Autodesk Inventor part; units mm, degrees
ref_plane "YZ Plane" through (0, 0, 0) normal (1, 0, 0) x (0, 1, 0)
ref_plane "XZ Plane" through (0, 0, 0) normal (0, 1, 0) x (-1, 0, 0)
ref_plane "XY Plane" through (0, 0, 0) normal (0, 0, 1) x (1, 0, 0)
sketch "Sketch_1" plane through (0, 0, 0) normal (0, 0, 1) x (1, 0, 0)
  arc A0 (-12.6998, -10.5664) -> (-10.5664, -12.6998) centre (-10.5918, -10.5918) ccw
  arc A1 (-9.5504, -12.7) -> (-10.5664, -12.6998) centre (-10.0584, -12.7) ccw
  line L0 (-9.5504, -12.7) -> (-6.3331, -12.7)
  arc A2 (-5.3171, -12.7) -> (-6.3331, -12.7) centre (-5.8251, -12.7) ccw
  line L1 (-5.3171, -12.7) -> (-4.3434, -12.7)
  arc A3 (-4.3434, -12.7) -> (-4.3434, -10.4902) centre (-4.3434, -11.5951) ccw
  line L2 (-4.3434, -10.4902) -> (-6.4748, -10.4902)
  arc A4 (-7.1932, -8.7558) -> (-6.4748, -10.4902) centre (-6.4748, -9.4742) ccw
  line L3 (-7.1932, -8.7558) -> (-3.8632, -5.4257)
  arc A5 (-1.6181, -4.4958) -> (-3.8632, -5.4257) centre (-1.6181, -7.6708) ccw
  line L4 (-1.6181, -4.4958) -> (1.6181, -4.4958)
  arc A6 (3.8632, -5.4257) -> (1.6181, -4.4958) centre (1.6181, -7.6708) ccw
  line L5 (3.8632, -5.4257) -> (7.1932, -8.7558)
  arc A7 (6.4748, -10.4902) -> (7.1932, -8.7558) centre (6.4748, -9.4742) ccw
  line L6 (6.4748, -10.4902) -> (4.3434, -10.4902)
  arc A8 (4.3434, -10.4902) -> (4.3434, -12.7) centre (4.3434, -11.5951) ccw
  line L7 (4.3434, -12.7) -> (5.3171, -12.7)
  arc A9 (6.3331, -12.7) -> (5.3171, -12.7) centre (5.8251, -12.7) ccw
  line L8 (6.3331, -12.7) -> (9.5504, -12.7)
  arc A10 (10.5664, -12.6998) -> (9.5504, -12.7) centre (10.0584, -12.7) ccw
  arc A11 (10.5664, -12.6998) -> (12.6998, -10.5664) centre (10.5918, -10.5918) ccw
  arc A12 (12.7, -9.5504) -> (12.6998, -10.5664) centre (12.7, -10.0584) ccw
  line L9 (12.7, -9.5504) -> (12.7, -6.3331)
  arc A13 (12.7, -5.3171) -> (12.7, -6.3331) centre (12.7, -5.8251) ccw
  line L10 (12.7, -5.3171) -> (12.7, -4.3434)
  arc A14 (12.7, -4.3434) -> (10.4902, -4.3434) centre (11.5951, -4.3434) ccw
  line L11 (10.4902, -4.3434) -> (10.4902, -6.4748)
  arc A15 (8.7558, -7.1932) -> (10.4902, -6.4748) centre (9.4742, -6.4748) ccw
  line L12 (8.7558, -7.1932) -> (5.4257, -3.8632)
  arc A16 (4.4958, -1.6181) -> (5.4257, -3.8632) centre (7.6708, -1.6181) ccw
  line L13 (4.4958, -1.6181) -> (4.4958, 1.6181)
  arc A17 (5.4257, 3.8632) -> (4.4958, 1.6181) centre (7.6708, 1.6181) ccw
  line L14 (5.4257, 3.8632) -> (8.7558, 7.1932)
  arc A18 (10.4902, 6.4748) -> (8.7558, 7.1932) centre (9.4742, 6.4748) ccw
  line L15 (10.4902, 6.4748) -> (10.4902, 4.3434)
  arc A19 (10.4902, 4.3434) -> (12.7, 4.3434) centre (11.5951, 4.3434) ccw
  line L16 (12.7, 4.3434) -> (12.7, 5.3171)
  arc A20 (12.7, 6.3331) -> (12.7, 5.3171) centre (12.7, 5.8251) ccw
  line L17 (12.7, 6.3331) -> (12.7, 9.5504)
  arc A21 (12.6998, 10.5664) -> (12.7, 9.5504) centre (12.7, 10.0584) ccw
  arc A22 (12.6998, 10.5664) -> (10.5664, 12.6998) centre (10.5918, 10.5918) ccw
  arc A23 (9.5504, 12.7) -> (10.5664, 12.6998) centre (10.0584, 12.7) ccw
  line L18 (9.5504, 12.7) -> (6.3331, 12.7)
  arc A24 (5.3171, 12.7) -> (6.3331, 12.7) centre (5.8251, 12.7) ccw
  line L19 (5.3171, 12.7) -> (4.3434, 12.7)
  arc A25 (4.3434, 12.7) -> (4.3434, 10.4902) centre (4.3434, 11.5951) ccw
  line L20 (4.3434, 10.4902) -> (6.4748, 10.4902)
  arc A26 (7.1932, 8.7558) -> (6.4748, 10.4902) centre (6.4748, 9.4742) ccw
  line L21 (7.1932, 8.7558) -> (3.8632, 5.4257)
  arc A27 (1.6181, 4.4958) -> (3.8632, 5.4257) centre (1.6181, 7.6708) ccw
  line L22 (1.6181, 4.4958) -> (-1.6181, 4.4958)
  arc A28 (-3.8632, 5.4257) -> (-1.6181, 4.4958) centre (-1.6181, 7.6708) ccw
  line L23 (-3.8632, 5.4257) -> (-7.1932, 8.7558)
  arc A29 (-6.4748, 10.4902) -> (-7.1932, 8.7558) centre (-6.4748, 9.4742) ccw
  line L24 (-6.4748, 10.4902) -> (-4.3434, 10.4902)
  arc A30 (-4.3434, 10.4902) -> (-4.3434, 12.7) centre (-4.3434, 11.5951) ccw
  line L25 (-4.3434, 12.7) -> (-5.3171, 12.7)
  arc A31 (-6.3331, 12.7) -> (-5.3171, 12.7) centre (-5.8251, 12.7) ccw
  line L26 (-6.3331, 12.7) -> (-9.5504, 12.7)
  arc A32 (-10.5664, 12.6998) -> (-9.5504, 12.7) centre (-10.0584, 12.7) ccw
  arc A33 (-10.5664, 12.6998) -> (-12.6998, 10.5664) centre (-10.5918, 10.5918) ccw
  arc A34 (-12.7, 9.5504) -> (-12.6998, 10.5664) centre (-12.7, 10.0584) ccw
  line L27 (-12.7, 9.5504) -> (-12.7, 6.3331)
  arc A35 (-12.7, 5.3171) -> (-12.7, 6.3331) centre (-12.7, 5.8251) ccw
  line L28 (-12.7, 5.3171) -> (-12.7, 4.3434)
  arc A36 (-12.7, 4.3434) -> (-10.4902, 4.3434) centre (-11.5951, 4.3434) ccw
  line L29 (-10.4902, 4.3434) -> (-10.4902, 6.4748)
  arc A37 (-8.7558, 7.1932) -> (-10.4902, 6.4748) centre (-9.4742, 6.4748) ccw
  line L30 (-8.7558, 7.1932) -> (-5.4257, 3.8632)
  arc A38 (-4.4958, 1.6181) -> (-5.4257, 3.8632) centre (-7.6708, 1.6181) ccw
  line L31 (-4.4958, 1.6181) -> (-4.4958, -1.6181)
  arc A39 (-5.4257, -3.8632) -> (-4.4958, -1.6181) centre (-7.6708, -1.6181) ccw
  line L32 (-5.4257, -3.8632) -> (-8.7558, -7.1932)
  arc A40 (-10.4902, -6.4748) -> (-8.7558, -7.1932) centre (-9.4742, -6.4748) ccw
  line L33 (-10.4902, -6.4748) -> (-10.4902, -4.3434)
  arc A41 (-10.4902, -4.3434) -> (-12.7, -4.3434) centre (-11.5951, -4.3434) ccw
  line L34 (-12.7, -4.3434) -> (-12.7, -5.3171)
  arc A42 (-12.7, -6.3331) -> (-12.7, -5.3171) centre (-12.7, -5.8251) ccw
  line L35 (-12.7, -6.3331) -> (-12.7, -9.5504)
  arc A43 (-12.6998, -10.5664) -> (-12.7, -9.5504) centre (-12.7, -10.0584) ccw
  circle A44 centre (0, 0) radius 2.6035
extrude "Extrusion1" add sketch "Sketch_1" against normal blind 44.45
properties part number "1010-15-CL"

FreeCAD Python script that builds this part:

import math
import FreeCAD as App
import Part
import Sketcher

V = App.Vector
Q = App.Units.Quantity

doc = App.newDocument("Part")
body = doc.addObject("PartDesign::Body", "Body")

sketch1 = body.newObject("Sketcher::SketchObject", "Sketch")
sketch1.AttachmentSupport = (doc.getObject("XY_Plane"), [""])
sketch1.MapMode = "FlatFace"
sketch1.addGeometry([
    Part.ArcOfCircle(Part.Circle(V(-12.7, -10.1, 0), V(0, 0, 1), 0.5), math.radians(-90), math.radians(90)),
    Part.ArcOfCircle(Part.Circle(V(-10.6, -10.6, 0), V(0, 0, 1), 2.1), math.radians(179), math.radians(271)),
    Part.ArcOfCircle(Part.Circle(V(-10.1, -12.7, 0), V(0, 0, 1), 0.5), math.radians(0), math.radians(180)),
    Part.LineSegment(V(-9.6, -12.7, 0), V(-6.3, -12.7, 0)),
    Part.ArcOfCircle(Part.Circle(V(-5.8, -12.7, 0), V(0, 0, 1), 0.5), math.radians(0), math.radians(180)),
    Part.LineSegment(V(-5.3, -12.7, 0), V(-4.3, -12.7, 0)),
    Part.ArcOfCircle(Part.Circle(V(-4.3, -11.6, 0), V(0, 0, 1), 1.1), math.radians(-90), math.radians(90)),
    Part.LineSegment(V(-4.3, -10.5, 0), V(-6.5, -10.5, 0)),
    Part.ArcOfCircle(Part.Circle(V(-6.5, -9.5, 0), V(0, 0, 1), 1), math.radians(135), math.radians(270)),
    Part.LineSegment(V(-7.2, -8.8, 0), V(-3.9, -5.4, 0)),
    Part.ArcOfCircle(Part.Circle(V(-1.6, -7.7, 0), V(0, 0, 1), 3.2), math.radians(90), math.radians(135)),
    Part.LineSegment(V(-1.6, -4.5, 0), V(1.6, -4.5, 0)),
    Part.ArcOfCircle(Part.Circle(V(1.6, -7.7, 0), V(0, 0, 1), 3.2), math.radians(45), math.radians(90)),
    Part.LineSegment(V(3.9, -5.4, 0), V(7.2, -8.8, 0)),
    Part.ArcOfCircle(Part.Circle(V(6.5, -9.5, 0), V(0, 0, 1), 1), math.radians(-90), math.radians(45)),
    Part.LineSegment(V(6.5, -10.5, 0), V(4.3, -10.5, 0)),
    Part.ArcOfCircle(Part.Circle(V(4.3, -11.6, 0), V(0, 0, 1), 1.1), math.radians(90), math.radians(270)),
    Part.LineSegment(V(4.3, -12.7, 0), V(5.3, -12.7, 0)),
    Part.ArcOfCircle(Part.Circle(V(5.8, -12.7, 0), V(0, 0, 1), 0.5), math.radians(0), math.radians(180)),
    Part.LineSegment(V(6.3, -12.7, 0), V(9.6, -12.7, 0)),
    Part.ArcOfCircle(Part.Circle(V(10.1, -12.7, 0), V(0, 0, 1), 0.5), math.radians(0), math.radians(180)),
    Part.ArcOfCircle(Part.Circle(V(10.6, -10.6, 0), V(0, 0, 1), 2.1), math.radians(-91), math.radians(1)),
    Part.ArcOfCircle(Part.Circle(V(12.7, -10.1, 0), V(0, 0, 1), 0.5), math.radians(90), math.radians(270)),
    Part.LineSegment(V(12.7, -9.6, 0), V(12.7, -6.3, 0)),
    Part.ArcOfCircle(Part.Circle(V(12.7, -5.8, 0), V(0, 0, 1), 0.5), math.radians(90), math.radians(270)),
    Part.LineSegment(V(12.7, -5.3, 0), V(12.7, -4.3, 0)),
    Part.ArcOfCircle(Part.Circle(V(11.6, -4.3, 0), V(0, 0, 1), 1.1), math.radians(0), math.radians(180)),
    Part.LineSegment(V(10.5, -4.3, 0), V(10.5, -6.5, 0)),
    Part.ArcOfCircle(Part.Circle(V(9.5, -6.5, 0), V(0, 0, 1), 1), math.radians(-135), math.radians(0)),
    Part.LineSegment(V(8.8, -7.2, 0), V(5.4, -3.9, 0)),
    Part.ArcOfCircle(Part.Circle(V(7.7, -1.6, 0), V(0, 0, 1), 3.2), math.radians(180), math.radians(225)),
    Part.LineSegment(V(4.5, -1.6, 0), V(4.5, 1.6, 0)),
    Part.ArcOfCircle(Part.Circle(V(7.7, 1.6, 0), V(0, 0, 1), 3.2), math.radians(135), math.radians(180)),
    Part.LineSegment(V(5.4, 3.9, 0), V(8.8, 7.2, 0)),
    Part.ArcOfCircle(Part.Circle(V(9.5, 6.5, 0), V(0, 0, 1), 1), math.radians(0), math.radians(135)),
    Part.LineSegment(V(10.5, 6.5, 0), V(10.5, 4.3, 0)),
    Part.ArcOfCircle(Part.Circle(V(11.6, 4.3, 0), V(0, 0, 1), 1.1), math.radians(180), math.radians(360)),
    Part.LineSegment(V(12.7, 4.3, 0), V(12.7, 5.3, 0)),
    Part.ArcOfCircle(Part.Circle(V(12.7, 5.8, 0), V(0, 0, 1), 0.5), math.radians(90), math.radians(270)),
    Part.LineSegment(V(12.7, 6.3, 0), V(12.7, 9.6, 0)),
    Part.ArcOfCircle(Part.Circle(V(12.7, 10.1, 0), V(0, 0, 1), 0.5), math.radians(90), math.radians(270)),
    Part.ArcOfCircle(Part.Circle(V(10.6, 10.6, 0), V(0, 0, 1), 2.1), math.radians(-1), math.radians(91)),
    Part.ArcOfCircle(Part.Circle(V(10.1, 12.7, 0), V(0, 0, 1), 0.5), math.radians(180), math.radians(360)),
    Part.LineSegment(V(9.6, 12.7, 0), V(6.3, 12.7, 0)),
    Part.ArcOfCircle(Part.Circle(V(5.8, 12.7, 0), V(0, 0, 1), 0.5), math.radians(180), math.radians(360)),
    Part.LineSegment(V(5.3, 12.7, 0), V(4.3, 12.7, 0)),
    Part.ArcOfCircle(Part.Circle(V(4.3, 11.6, 0), V(0, 0, 1), 1.1), math.radians(90), math.radians(270)),
    Part.LineSegment(V(4.3, 10.5, 0), V(6.5, 10.5, 0)),
    Part.ArcOfCircle(Part.Circle(V(6.5, 9.5, 0), V(0, 0, 1), 1), math.radians(-45), math.radians(90)),
    Part.LineSegment(V(7.2, 8.8, 0), V(3.9, 5.4, 0)),
    Part.ArcOfCircle(Part.Circle(V(1.6, 7.7, 0), V(0, 0, 1), 3.2), math.radians(-90), math.radians(-45)),
    Part.LineSegment(V(1.6, 4.5, 0), V(-1.6, 4.5, 0)),
    Part.ArcOfCircle(Part.Circle(V(-1.6, 7.7, 0), V(0, 0, 1), 3.2), math.radians(-135), math.radians(-90)),
    Part.LineSegment(V(-3.9, 5.4, 0), V(-7.2, 8.8, 0)),
    Part.ArcOfCircle(Part.Circle(V(-6.5, 9.5, 0), V(0, 0, 1), 1), math.radians(90), math.radians(225)),
    Part.LineSegment(V(-6.5, 10.5, 0), V(-4.3, 10.5, 0)),
    Part.ArcOfCircle(Part.Circle(V(-4.3, 11.6, 0), V(0, 0, 1), 1.1), math.radians(-90), math.radians(90)),
    Part.LineSegment(V(-4.3, 12.7, 0), V(-5.3, 12.7, 0)),
    Part.ArcOfCircle(Part.Circle(V(-5.8, 12.7, 0), V(0, 0, 1), 0.5), math.radians(180), math.radians(360)),
    Part.LineSegment(V(-6.3, 12.7, 0), V(-9.6, 12.7, 0)),
    Part.ArcOfCircle(Part.Circle(V(-10.1, 12.7, 0), V(0, 0, 1), 0.5), math.radians(-180), math.radians(0)),
    Part.ArcOfCircle(Part.Circle(V(-10.6, 10.6, 0), V(0, 0, 1), 2.1), math.radians(89), math.radians(181)),
    Part.ArcOfCircle(Part.Circle(V(-12.7, 10.1, 0), V(0, 0, 1), 0.5), math.radians(-90), math.radians(90)),
    Part.LineSegment(V(-12.7, 9.6, 0), V(-12.7, 6.3, 0)),
    Part.ArcOfCircle(Part.Circle(V(-12.7, 5.8, 0), V(0, 0, 1), 0.5), math.radians(-90), math.radians(90)),
    Part.LineSegment(V(-12.7, 5.3, 0), V(-12.7, 4.3, 0)),
    Part.ArcOfCircle(Part.Circle(V(-11.6, 4.3, 0), V(0, 0, 1), 1.1), math.radians(180), math.radians(360)),
    Part.LineSegment(V(-10.5, 4.3, 0), V(-10.5, 6.5, 0)),
    Part.ArcOfCircle(Part.Circle(V(-9.5, 6.5, 0), V(0, 0, 1), 1), math.radians(45), math.radians(180)),
    Part.LineSegment(V(-8.8, 7.2, 0), V(-5.4, 3.9, 0)),
    Part.ArcOfCircle(Part.Circle(V(-7.7, 1.6, 0), V(0, 0, 1), 3.2), math.radians(0), math.radians(45)),
    Part.LineSegment(V(-4.5, 1.6, 0), V(-4.5, -1.6, 0)),
    Part.ArcOfCircle(Part.Circle(V(-7.7, -1.6, 0), V(0, 0, 1), 3.2), math.radians(-45), math.radians(0)),
    Part.LineSegment(V(-5.4, -3.9, 0), V(-8.8, -7.2, 0)),
    Part.ArcOfCircle(Part.Circle(V(-9.5, -6.5, 0), V(0, 0, 1), 1), math.radians(180), math.radians(315)),
    Part.LineSegment(V(-10.5, -6.5, 0), V(-10.5, -4.3, 0)),
    Part.ArcOfCircle(Part.Circle(V(-11.6, -4.3, 0), V(0, 0, 1), 1.1), math.radians(0), math.radians(180)),
    Part.LineSegment(V(-12.7, -4.3, 0), V(-12.7, -5.3, 0)),
    Part.ArcOfCircle(Part.Circle(V(-12.7, -5.8, 0), V(0, 0, 1), 0.5), math.radians(-90), math.radians(90)),
    Part.LineSegment(V(-12.7, -6.3, 0), V(-12.7, -9.6, 0)),
    Part.Circle(V(0, 0, 0), V(0, 0, 1), 2.6),
], False)
sketch1.addConstraint([
    Sketcher.Constraint("Coincident", 0, 1, 1, 1),
    Sketcher.Constraint("Coincident", 1, 2, 2, 2),
    Sketcher.Constraint("Coincident", 2, 1, 3, 1),
    Sketcher.Constraint("Coincident", 3, 2, 4, 2),
    Sketcher.Constraint("Coincident", 4, 1, 5, 1),
    Sketcher.Constraint("Tangent", 5, 2, 6, 1),
    Sketcher.Constraint("Tangent", 6, 2, 7, 1),
    Sketcher.Constraint("Tangent", 7, 2, 8, 2),
    Sketcher.Constraint("Tangent", 8, 1, 9, 1),
    Sketcher.Constraint("Tangent", 9, 2, 10, 2),
    Sketcher.Constraint("Tangent", 10, 1, 11, 1),
    Sketcher.Constraint("Tangent", 11, 2, 12, 2),
    Sketcher.Constraint("Tangent", 12, 1, 13, 1),
    Sketcher.Constraint("Tangent", 13, 2, 14, 2),
    Sketcher.Constraint("Tangent", 14, 1, 15, 1),
    Sketcher.Constraint("Tangent", 15, 2, 16, 1),
    Sketcher.Constraint("Tangent", 16, 2, 17, 1),
    Sketcher.Constraint("Coincident", 17, 2, 18, 2),
    Sketcher.Constraint("Coincident", 18, 1, 19, 1),
    Sketcher.Constraint("Coincident", 19, 2, 20, 2),
    Sketcher.Constraint("Coincident", 20, 1, 21, 1),
    Sketcher.Constraint("Coincident", 21, 2, 22, 2),
    Sketcher.Constraint("Coincident", 22, 1, 23, 1),
    Sketcher.Constraint("Coincident", 23, 2, 24, 2),
    Sketcher.Constraint("Coincident", 24, 1, 25, 1),
    Sketcher.Constraint("Tangent", 25, 2, 26, 1),
    Sketcher.Constraint("Tangent", 26, 2, 27, 1),
    Sketcher.Constraint("Tangent", 27, 2, 28, 2),
    Sketcher.Constraint("Tangent", 28, 1, 29, 1),
    Sketcher.Constraint("Tangent", 29, 2, 30, 2),
    Sketcher.Constraint("Tangent", 30, 1, 31, 1),
    Sketcher.Constraint("Tangent", 31, 2, 32, 2),
    Sketcher.Constraint("Tangent", 32, 1, 33, 1),
    Sketcher.Constraint("Tangent", 33, 2, 34, 2),
    Sketcher.Constraint("Tangent", 34, 1, 35, 1),
    Sketcher.Constraint("Tangent", 35, 2, 36, 1),
    Sketcher.Constraint("Tangent", 36, 2, 37, 1),
    Sketcher.Constraint("Coincident", 37, 2, 38, 2),
    Sketcher.Constraint("Coincident", 38, 1, 39, 1),
    Sketcher.Constraint("Coincident", 39, 2, 40, 2),
    Sketcher.Constraint("Coincident", 40, 1, 41, 1),
    Sketcher.Constraint("Coincident", 41, 2, 42, 2),
    Sketcher.Constraint("Coincident", 42, 1, 43, 1),
    Sketcher.Constraint("Coincident", 43, 2, 44, 2),
    Sketcher.Constraint("Coincident", 44, 1, 45, 1),
    Sketcher.Constraint("Tangent", 45, 2, 46, 1),
    Sketcher.Constraint("Tangent", 46, 2, 47, 1),
    Sketcher.Constraint("Tangent", 47, 2, 48, 2),
    Sketcher.Constraint("Tangent", 48, 1, 49, 1),
    Sketcher.Constraint("Tangent", 49, 2, 50, 2),
    Sketcher.Constraint("Tangent", 50, 1, 51, 1),
    Sketcher.Constraint("Tangent", 51, 2, 52, 2),
    Sketcher.Constraint("Tangent", 52, 1, 53, 1),
    Sketcher.Constraint("Tangent", 53, 2, 54, 2),
    Sketcher.Constraint("Tangent", 54, 1, 55, 1),
    Sketcher.Constraint("Tangent", 55, 2, 56, 1),
    Sketcher.Constraint("Tangent", 56, 2, 57, 1),
    Sketcher.Constraint("Coincident", 57, 2, 58, 2),
    Sketcher.Constraint("Coincident", 58, 1, 59, 1),
    Sketcher.Constraint("Coincident", 59, 2, 60, 2),
    Sketcher.Constraint("Coincident", 60, 1, 61, 1),
    Sketcher.Constraint("Coincident", 61, 2, 62, 2),
    Sketcher.Constraint("Coincident", 62, 1, 63, 1),
    Sketcher.Constraint("Coincident", 63, 2, 64, 2),
    Sketcher.Constraint("Coincident", 64, 1, 65, 1),
    Sketcher.Constraint("Tangent", 65, 2, 66, 1),
    Sketcher.Constraint("Tangent", 66, 2, 67, 1),
    Sketcher.Constraint("Tangent", 67, 2, 68, 2),
    Sketcher.Constraint("Tangent", 68, 1, 69, 1),
    Sketcher.Constraint("Tangent", 69, 2, 70, 2),
    Sketcher.Constraint("Tangent", 70, 1, 71, 1),
    Sketcher.Constraint("Tangent", 71, 2, 72, 2),
    Sketcher.Constraint("Tangent", 72, 1, 73, 1),
    Sketcher.Constraint("Tangent", 73, 2, 74, 2),
    Sketcher.Constraint("Tangent", 74, 1, 75, 1),
    Sketcher.Constraint("Tangent", 75, 2, 76, 1),
    Sketcher.Constraint("Tangent", 76, 2, 77, 1),
    Sketcher.Constraint("Coincident", 77, 2, 78, 2),
    Sketcher.Constraint("Coincident", 78, 1, 79, 1),
    Sketcher.Constraint("Coincident", 79, 2, 0, 2),
    Sketcher.Constraint("Horizontal", 3),
    Sketcher.Constraint("Horizontal", 5),
    Sketcher.Constraint("Horizontal", 7),
    Sketcher.Constraint("Horizontal", 11),
    Sketcher.Constraint("Horizontal", 15),
    Sketcher.Constraint("Horizontal", 17),
    Sketcher.Constraint("Horizontal", 19),
    Sketcher.Constraint("Vertical", 23),
    Sketcher.Constraint("Vertical", 25),
    Sketcher.Constraint("Vertical", 27),
    Sketcher.Constraint("Vertical", 31),
    Sketcher.Constraint("Vertical", 35),
    Sketcher.Constraint("Vertical", 37),
    Sketcher.Constraint("Vertical", 39),
    Sketcher.Constraint("Horizontal", 43),
    Sketcher.Constraint("Horizontal", 45),
    Sketcher.Constraint("Horizontal", 47),
    Sketcher.Constraint("Horizontal", 51),
    Sketcher.Constraint("Horizontal", 55),
    Sketcher.Constraint("Horizontal", 57),
    Sketcher.Constraint("Horizontal", 59),
    Sketcher.Constraint("Vertical", 63),
    Sketcher.Constraint("Vertical", 65),
    Sketcher.Constraint("Vertical", 67),
    Sketcher.Constraint("Vertical", 71),
    Sketcher.Constraint("Vertical", 75),
    Sketcher.Constraint("Vertical", 77),
    Sketcher.Constraint("Vertical", 79),
    Sketcher.Constraint("Coincident", 80, 3, -1, 1),
    Sketcher.Constraint("Equal", 0, 2),
    Sketcher.Constraint("Equal", 2, 4),
    Sketcher.Constraint("Equal", 10, 12),
    Sketcher.Constraint("Equal", 8, 14),
    Sketcher.Constraint("Equal", 6, 16),
    Sketcher.Constraint("Equal", 4, 18),
    Sketcher.Constraint("Equal", 18, 20),
    Sketcher.Constraint("Equal", 1, 21),
    Sketcher.Constraint("Equal", 20, 22),
    Sketcher.Constraint("Equal", 22, 24),
    Sketcher.Constraint("Equal", 16, 26),
    Sketcher.Constraint("Equal", 14, 28),
    Sketcher.Constraint("Equal", 12, 30),
    Sketcher.Constraint("Equal", 30, 32),
    Sketcher.Constraint("Equal", 28, 34),
    Sketcher.Constraint("Equal", 26, 36),
    Sketcher.Constraint("Equal", 24, 38),
    Sketcher.Constraint("Equal", 38, 40),
    Sketcher.Constraint("Equal", 21, 41),
    Sketcher.Constraint("Equal", 40, 42),
    Sketcher.Constraint("Equal", 42, 44),
    Sketcher.Constraint("Equal", 36, 46),
    Sketcher.Constraint("Equal", 34, 48),
    Sketcher.Constraint("Equal", 32, 50),
    Sketcher.Constraint("Equal", 50, 52),
    Sketcher.Constraint("Equal", 48, 54),
    Sketcher.Constraint("Equal", 46, 56),
    Sketcher.Constraint("Equal", 44, 58),
    Sketcher.Constraint("Equal", 58, 60),
    Sketcher.Constraint("Equal", 41, 61),
    Sketcher.Constraint("Equal", 60, 62),
    Sketcher.Constraint("Equal", 62, 64),
    Sketcher.Constraint("Equal", 56, 66),
    Sketcher.Constraint("Equal", 54, 68),
    Sketcher.Constraint("Equal", 52, 70),
    Sketcher.Constraint("Equal", 70, 72),
    Sketcher.Constraint("Equal", 68, 74),
    Sketcher.Constraint("Equal", 66, 76),
    Sketcher.Constraint("Equal", 64, 78),
    Sketcher.Constraint("Symmetric", 0, 3, 40, 3, -1, 1),
    Sketcher.Constraint("Symmetric", 1, 3, 41, 3, -1, 1),
    Sketcher.Constraint("Symmetric", 2, 3, 42, 3, -1, 1),
    Sketcher.Constraint("Symmetric", 4, 3, 44, 3, -1, 1),
    Sketcher.Constraint("Symmetric", 6, 3, 46, 3, -1, 1),
    Sketcher.Constraint("Symmetric", 10, 3, 50, 3, -1, 1),
    Sketcher.Constraint("Symmetric", 14, 3, 54, 3, -1, 1),
    Sketcher.Constraint("Symmetric", 18, 3, 58, 3, -1, 1),
    Sketcher.Constraint("Symmetric", 20, 3, 60, 3, -1, 1),
    Sketcher.Constraint("Symmetric", 21, 3, 61, 3, -1, 1),
    Sketcher.Constraint("Symmetric", 22, 3, 62, 3, -1, 1),
    Sketcher.Constraint("Symmetric", 24, 3, 64, 3, -1, 1),
    Sketcher.Constraint("Symmetric", 26, 3, 66, 3, -1, 1),
    Sketcher.Constraint("Symmetric", 30, 3, 70, 3, -1, 1),
    Sketcher.Constraint("Symmetric", 34, 3, 74, 3, -1, 1),
    Sketcher.Constraint("Symmetric", 38, 3, 78, 3, -1, 1),
    Sketcher.Constraint("Symmetric", 8, 3, 14, 3, -2),
    Sketcher.Constraint("Symmetric", 4, 3, 18, 3, -2),
    Sketcher.Constraint("Symmetric", 2, 3, 20, 3, -2),
    Sketcher.Constraint("Symmetric", 1, 3, 21, 3, -2),
    Sketcher.Constraint("Symmetric", 0, 3, 22, 3, -2),
    Sketcher.Constraint("Symmetric", 38, 3, 64, 3, -2),
    Sketcher.Constraint("Symmetric", 36, 3, 66, 3, -2),
    Sketcher.Constraint("Symmetric", 49, 2, 52, 1, -2),
    Sketcher.Constraint("Symmetric", 33, 2, 68, 1, -2),
    Sketcher.Constraint("Symmetric", 29, 2, 72, 1, -2),
    Sketcher.Constraint("Perpendicular", 9, 13),
    Sketcher.Constraint("Parallel", 13, 29),
    Sketcher.Constraint("Perpendicular", 29, 33),
    Sketcher.Constraint("Horizontal", 2, 3, 4, 3),
    Sketcher.Constraint("Horizontal", 26, 3, 76, 3),
    Sketcher.Constraint("Horizontal", 20, 3, 1, 2),
    Sketcher.Constraint("Horizontal", 1, 2, 2, 1),
    Sketcher.Constraint("Horizontal", 3, 2, 4, 1),
    Sketcher.Constraint("Horizontal", 17, 2, 18, 1),
    Sketcher.Constraint("Horizontal", 41, 2, 42, 1),
    Sketcher.Constraint("Horizontal", 57, 2, 58, 1),
    Sketcher.Constraint("Vertical", 22, 3, 24, 3),
    Sketcher.Constraint("Vertical", 16, 3, 46, 3),
    Sketcher.Constraint("Vertical", 6, 3, 56, 3),
    Sketcher.Constraint("Vertical", 78, 3, 0, 1),
    Sketcher.Constraint("Vertical", 21, 2, 22, 1),
    Sketcher.Constraint("Vertical", 23, 2, 24, 1),
    Sketcher.Constraint("Vertical", 37, 2, 38, 1),
    Sketcher.Constraint("Vertical", 61, 2, 62, 1),
    Sketcher.Constraint("Vertical", 77, 2, 78, 1),
    Sketcher.Constraint("Equal", 59, 23),
    Sketcher.Constraint("Equal", 57, 25),
    Sketcher.Constraint("Equal", 55, 27),
    Sketcher.Constraint("Equal", 51, 31),
    Sketcher.Constraint("Equal", 13, 29),
    Sketcher.Constraint("Radius", 0, Q("0.02 in")),
    Sketcher.Constraint("Radius", 8, Q("0.04 in")),
    Sketcher.Constraint("Diameter", 80, Q("0.205 in")),
    Sketcher.Constraint("Radius", 1, Q("0.083 in")),
    Sketcher.Constraint("Radius", 10, Q("0.125 in")),
    Sketcher.Constraint("DistanceX", 0, 3, -1, 1, Q("0.5 in")),
    Sketcher.Constraint("DistanceY", 2, 3, -1, 1, Q("0.5 in")),
    Sketcher.Constraint("Radius", 6, Q("0.0435 in")),
    Sketcher.Constraint("DistanceX", 11, 1, 11, 2, Q("0.1274 in")),
    Sketcher.Constraint("DistanceY", 0, 3, -1, 1, Q("0.396 in")),
    Sketcher.Constraint("DistanceX", 6, 3, -1, 1, Q("0.171 in")),
    Sketcher.Constraint("DistanceY", 10, 3, -1, 1, Q("0.302 in")),
    Sketcher.Constraint("DistanceX", 3, 1, 3, 2, 3.2173),
])
pad1 = body.newObject("PartDesign::Pad", "Pad")
pad1.Profile = sketch1
pad1.Length = Q("1.75 in")
pad1.Reversed = True

doc.recompute()
